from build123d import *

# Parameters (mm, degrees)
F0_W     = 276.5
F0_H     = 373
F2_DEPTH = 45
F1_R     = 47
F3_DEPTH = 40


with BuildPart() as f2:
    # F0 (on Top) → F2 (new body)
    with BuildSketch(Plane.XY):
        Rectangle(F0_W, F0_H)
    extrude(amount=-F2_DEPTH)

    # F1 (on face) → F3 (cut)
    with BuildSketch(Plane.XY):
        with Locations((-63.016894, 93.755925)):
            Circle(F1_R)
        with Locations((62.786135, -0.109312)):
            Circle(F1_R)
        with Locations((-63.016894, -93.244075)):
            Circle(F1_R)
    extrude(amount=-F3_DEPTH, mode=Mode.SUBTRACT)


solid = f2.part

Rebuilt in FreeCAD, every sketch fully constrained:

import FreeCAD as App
import Part
import Sketcher

V = App.Vector
Q = App.Units.Quantity

doc = App.newDocument("Part")
body = doc.addObject("PartDesign::Body", "Body")

sketch1 = body.newObject("Sketcher::SketchObject", "Sketch")
sketch1.AttachmentSupport = (doc.getObject("XY_Plane"), [""])
sketch1.MapMode = "FlatFace"
sketch1.addGeometry(Part.LineSegment(V(-138, 186, 0), V(-138, -186, 0)), False)
sketch1.addGeometry(Part.LineSegment(V(-138, -186, 0), V(138, -186, 0)), False)
sketch1.addGeometry(Part.LineSegment(V(138, -186, 0), V(138, 186, 0)), False)
sketch1.addGeometry(Part.LineSegment(V(138, 186, 0), V(-138, 186, 0)), False)
sketch1.addConstraint(Sketcher.Constraint("Coincident", 0, 2, 1, 1))
sketch1.addConstraint(Sketcher.Constraint("Coincident", 1, 2, 2, 1))
sketch1.addConstraint(Sketcher.Constraint("Coincident", 2, 2, 3, 1))
sketch1.addConstraint(Sketcher.Constraint("Coincident", 3, 2, 0, 1))
sketch1.addConstraint(Sketcher.Constraint("Vertical", 0))
sketch1.addConstraint(Sketcher.Constraint("Horizontal", 1))
sketch1.addConstraint(Sketcher.Constraint("Vertical", 2))
sketch1.addConstraint(Sketcher.Constraint("Horizontal", 3))
sketch1.addConstraint(Sketcher.Constraint("Symmetric", 0, 2, 2, 2, -1, 1))
sketch1.addConstraint(Sketcher.Constraint("DistanceY", 0, 2, 0, 1, Q("373 mm")))
sketch1.addConstraint(Sketcher.Constraint("DistanceX", 1, 1, 1, 2, Q("276.5 mm")))
pad1 = body.newObject("PartDesign::Pad", "Pad")
pad1.Profile = sketch1
pad1.Length = 45
pad1.Reversed = True

sketch2 = body.newObject("Sketcher::SketchObject", "Sketch001")
sketch2.AttachmentSupport = (doc.getObject("XY_Plane"), [""])
sketch2.MapMode = "FlatFace"
sketch2.addGeometry(Part.Circle(V(-63, 94, 0), V(0, 0, 1), 47), False)
sketch2.addGeometry(Part.Circle(V(63, 0, 0), V(0, 0, 1), 47), False)
sketch2.addGeometry(Part.Circle(V(-63, -93, 0), V(0, 0, 1), 47), False)
sketch2.addConstraint(Sketcher.Constraint("Equal", 0, 1))
sketch2.addConstraint(Sketcher.Constraint("Equal", 1, 2))
sketch2.addConstraint(Sketcher.Constraint("Vertical", 0, 3, 2, 3))
sketch2.addConstraint(Sketcher.Constraint("Diameter", 0, Q("94 mm")))
sketch2.addConstraint(Sketcher.Constraint("DistanceY", 2, 3, 0, 3, Q("187 mm")))
sketch2.addConstraint(Sketcher.Constraint("DistanceX", 0, 3, 1, 3, Q("125.803029 mm")))
sketch2.addConstraint(Sketcher.Constraint("DistanceX", 0, 3, -1, 1, Q("63.016894 mm")))
sketch2.addConstraint(Sketcher.Constraint("DistanceY", -1, 1, 0, 3, Q("93.755925 mm")))
sketch2.addConstraint(Sketcher.Constraint("DistanceY", 1, 3, -1, 1, Q("0.109312 mm")))
pocket1 = body.newObject("PartDesign::Pocket", "Pocket")
pocket1.Profile = sketch2
pocket1.Length = 40

doc.recompute()
